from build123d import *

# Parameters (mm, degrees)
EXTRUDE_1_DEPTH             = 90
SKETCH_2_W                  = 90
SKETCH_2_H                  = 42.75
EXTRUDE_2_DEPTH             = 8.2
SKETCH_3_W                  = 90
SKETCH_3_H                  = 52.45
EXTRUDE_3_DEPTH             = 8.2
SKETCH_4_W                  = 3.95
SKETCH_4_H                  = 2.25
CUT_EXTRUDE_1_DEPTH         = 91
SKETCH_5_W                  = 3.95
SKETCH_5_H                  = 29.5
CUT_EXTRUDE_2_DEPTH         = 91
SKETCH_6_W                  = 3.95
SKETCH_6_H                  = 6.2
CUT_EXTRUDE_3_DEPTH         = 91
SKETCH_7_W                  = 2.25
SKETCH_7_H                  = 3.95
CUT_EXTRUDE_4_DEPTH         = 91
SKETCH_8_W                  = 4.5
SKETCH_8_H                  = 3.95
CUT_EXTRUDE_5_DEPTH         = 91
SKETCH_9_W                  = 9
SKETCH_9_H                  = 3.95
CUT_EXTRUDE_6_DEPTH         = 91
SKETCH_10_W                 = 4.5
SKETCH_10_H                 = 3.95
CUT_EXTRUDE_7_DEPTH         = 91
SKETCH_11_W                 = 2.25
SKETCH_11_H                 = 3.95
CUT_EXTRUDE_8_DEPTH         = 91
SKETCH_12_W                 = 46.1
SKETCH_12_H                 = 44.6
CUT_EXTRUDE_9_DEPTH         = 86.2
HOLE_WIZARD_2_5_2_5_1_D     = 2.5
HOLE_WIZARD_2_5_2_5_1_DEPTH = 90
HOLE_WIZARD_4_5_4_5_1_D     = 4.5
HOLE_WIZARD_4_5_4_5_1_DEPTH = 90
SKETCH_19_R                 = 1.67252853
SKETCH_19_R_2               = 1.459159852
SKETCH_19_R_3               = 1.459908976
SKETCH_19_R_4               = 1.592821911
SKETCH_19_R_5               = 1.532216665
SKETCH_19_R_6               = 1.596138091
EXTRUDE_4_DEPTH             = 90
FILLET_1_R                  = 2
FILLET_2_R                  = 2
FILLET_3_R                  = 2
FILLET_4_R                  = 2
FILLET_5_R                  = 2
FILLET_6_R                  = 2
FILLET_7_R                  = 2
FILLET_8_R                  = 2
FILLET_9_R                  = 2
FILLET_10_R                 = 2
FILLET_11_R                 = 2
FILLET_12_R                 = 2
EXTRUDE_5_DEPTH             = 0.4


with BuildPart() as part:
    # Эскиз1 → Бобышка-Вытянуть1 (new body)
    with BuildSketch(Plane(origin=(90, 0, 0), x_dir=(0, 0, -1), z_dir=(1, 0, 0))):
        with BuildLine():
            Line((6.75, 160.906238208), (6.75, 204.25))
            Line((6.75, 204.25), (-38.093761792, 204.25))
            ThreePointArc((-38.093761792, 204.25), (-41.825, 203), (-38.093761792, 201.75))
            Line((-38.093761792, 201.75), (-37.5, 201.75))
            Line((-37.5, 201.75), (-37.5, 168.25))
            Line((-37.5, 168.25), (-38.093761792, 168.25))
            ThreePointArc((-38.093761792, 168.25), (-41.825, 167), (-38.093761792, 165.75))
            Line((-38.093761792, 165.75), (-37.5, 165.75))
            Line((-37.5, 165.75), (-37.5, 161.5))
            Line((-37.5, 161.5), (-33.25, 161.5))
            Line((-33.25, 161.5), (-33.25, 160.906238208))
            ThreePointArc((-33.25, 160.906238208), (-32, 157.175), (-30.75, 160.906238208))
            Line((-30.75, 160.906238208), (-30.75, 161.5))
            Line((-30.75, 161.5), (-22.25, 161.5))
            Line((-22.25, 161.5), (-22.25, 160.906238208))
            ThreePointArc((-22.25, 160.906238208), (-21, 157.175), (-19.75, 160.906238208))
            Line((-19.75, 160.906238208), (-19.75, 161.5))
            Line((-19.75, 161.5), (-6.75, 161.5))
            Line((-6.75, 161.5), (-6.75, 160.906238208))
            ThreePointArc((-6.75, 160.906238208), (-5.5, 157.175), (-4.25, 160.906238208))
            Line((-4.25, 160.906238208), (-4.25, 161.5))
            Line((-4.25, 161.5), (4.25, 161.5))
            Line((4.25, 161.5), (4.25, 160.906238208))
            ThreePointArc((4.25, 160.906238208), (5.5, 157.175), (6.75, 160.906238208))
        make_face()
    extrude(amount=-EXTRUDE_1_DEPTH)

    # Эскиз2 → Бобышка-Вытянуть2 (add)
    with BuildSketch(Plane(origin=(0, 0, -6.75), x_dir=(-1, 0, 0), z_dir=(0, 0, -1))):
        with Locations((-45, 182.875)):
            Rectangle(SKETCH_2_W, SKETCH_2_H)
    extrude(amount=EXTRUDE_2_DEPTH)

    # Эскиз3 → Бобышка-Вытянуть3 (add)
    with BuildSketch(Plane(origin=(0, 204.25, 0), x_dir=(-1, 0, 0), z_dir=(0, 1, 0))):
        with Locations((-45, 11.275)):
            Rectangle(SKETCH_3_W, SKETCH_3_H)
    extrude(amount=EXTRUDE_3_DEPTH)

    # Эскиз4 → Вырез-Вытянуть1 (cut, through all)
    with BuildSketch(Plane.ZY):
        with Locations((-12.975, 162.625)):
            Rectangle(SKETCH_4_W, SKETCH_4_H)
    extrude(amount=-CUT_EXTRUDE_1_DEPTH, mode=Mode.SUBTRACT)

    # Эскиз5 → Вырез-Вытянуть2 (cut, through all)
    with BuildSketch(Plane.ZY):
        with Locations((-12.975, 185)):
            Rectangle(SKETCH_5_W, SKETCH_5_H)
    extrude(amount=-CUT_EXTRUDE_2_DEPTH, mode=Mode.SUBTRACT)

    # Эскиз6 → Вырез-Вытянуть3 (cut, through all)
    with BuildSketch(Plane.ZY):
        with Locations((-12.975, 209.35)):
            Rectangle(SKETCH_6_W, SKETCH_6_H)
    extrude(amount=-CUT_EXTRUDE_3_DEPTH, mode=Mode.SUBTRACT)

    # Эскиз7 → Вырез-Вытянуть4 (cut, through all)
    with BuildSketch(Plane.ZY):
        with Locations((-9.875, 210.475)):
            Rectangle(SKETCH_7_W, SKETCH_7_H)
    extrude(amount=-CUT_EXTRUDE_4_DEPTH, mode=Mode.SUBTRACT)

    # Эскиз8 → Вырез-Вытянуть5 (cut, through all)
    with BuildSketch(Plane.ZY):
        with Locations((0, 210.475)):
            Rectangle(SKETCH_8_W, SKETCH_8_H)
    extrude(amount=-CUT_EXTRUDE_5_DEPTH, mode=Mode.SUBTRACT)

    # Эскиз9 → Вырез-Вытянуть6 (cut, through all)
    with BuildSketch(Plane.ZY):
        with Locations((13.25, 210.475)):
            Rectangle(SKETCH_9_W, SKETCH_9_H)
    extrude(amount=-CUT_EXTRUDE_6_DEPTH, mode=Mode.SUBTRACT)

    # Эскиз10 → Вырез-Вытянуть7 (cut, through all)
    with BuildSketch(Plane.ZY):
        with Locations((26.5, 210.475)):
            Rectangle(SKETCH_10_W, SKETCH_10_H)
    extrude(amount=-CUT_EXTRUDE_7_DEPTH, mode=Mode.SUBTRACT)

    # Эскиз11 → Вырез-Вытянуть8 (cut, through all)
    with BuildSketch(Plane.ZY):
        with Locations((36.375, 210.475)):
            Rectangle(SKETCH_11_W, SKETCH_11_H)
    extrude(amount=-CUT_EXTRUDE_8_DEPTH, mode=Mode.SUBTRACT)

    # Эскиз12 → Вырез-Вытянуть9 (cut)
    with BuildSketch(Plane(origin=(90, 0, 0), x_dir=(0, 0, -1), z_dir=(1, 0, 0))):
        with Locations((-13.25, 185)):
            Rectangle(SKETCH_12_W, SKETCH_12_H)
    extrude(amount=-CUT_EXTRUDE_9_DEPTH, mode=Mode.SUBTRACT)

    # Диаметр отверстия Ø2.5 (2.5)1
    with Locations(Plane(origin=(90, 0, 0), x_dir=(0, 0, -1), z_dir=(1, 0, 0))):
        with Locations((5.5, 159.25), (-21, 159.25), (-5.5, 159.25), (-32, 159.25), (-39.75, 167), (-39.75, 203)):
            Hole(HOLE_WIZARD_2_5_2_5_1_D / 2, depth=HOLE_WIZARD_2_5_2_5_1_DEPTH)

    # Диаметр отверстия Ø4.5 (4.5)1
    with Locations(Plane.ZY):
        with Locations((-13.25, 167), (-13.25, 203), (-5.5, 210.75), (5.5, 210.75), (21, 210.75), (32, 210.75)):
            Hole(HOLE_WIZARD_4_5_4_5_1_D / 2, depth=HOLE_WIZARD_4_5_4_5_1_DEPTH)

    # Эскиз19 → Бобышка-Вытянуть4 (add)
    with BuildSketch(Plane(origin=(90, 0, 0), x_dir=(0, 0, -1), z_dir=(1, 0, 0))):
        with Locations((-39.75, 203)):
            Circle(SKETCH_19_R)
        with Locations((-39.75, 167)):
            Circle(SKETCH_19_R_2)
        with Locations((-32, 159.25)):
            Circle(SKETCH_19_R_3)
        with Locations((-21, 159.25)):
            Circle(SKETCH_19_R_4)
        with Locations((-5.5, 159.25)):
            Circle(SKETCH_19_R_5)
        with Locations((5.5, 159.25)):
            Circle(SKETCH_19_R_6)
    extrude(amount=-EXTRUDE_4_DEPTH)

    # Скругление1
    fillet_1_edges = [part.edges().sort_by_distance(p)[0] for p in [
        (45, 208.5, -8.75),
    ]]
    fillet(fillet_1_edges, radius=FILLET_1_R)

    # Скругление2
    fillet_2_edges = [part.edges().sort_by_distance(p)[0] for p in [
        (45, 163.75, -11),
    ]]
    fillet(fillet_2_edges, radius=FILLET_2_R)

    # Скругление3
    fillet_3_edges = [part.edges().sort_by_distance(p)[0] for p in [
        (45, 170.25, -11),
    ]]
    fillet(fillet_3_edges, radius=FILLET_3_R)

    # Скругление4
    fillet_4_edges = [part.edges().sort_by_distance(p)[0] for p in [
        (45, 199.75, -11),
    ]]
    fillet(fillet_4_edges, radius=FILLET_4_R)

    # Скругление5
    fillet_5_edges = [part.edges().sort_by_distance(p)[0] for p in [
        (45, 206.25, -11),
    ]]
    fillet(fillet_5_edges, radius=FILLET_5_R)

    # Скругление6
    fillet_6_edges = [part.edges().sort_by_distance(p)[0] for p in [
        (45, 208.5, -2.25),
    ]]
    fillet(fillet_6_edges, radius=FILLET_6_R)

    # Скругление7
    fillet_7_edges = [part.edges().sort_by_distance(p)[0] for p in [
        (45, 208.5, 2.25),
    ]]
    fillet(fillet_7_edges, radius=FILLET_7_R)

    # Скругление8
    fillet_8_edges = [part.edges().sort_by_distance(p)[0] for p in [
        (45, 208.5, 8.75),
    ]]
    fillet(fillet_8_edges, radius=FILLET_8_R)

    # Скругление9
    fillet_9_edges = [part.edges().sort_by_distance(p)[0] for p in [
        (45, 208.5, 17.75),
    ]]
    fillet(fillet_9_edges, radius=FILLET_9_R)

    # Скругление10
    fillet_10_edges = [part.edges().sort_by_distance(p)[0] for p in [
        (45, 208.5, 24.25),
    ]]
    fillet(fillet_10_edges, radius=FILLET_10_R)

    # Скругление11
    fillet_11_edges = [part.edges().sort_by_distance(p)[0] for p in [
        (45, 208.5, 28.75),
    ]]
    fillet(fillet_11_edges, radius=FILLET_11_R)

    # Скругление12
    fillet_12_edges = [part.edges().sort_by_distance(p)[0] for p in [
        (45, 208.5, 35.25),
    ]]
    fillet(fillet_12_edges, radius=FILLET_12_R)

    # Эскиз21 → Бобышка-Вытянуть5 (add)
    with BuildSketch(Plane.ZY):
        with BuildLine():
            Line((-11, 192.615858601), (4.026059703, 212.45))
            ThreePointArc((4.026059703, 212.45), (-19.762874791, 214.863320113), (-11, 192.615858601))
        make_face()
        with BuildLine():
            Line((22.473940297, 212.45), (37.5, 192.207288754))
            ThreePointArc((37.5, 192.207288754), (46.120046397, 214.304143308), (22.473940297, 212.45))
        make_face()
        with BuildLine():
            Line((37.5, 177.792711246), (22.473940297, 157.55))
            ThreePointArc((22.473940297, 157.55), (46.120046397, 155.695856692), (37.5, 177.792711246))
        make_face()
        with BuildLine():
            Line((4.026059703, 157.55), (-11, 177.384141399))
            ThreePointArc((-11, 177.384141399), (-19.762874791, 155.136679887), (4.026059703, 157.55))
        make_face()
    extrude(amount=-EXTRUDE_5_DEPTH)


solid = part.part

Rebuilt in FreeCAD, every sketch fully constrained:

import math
import FreeCAD as App
import Part
import Sketcher

V = App.Vector


def edges_at(feature, points):
    """Names of the edges that pass closest to the given points."""
    edges = feature.Shape.Edges
    near = lambda p: min(range(len(edges)), key=lambda i: edges[i].distToShape(Part.Vertex(*p))[0])
    return sorted({f"Edge{near(p) + 1}" for p in points})


def add_polygon(sketch, points):
    """Adds a closed chain of lines whose ends are joined by coincident constraints."""
    first, n = sketch.GeometryCount, len(points)
    for a, b in zip(points, points[1:] + points[:1]):
        sketch.addGeometry(Part.LineSegment(App.Vector(*a, 0), App.Vector(*b, 0)), False)
    for i in range(n):
        sketch.addConstraint(Sketcher.Constraint("Coincident", first + i, 2, first + (i + 1) % n, 1))

doc = App.newDocument("Part")
body = doc.addObject("PartDesign::Body", "Body")

# Sketch on YZ plane
sketch1 = body.newObject("Sketcher::SketchObject", "Sketch")
sketch1.AttachmentSupport = (doc.getObject("YZ_Plane"), [""])
sketch1.MapMode = "FlatFace"
sketch1.AttachmentOffset = App.Placement(V(0, 0, 90), App.Rotation())
sketch1.addGeometry(Part.LineSegment(V(160.9, -6.8, 0), V(204.2, -6.8, 0)), False)
sketch1.addGeometry(Part.LineSegment(V(204.2, -6.8, 0), V(204.2, 38.1, 0)), False)
sketch1.addGeometry(Part.ArcOfCircle(Part.Circle(V(203, 39.8, 0), V(0, 0, 1), 2.1), math.radians(-53), math.radians(233)), False)
sketch1.addGeometry(Part.LineSegment(V(201.8, 38.1, 0), V(201.8, 37.5, 0)), False)
sketch1.addGeometry(Part.LineSegment(V(201.8, 37.5, 0), V(168.2, 37.5, 0)), False)
sketch1.addGeometry(Part.LineSegment(V(168.2, 37.5, 0), V(168.2, 38.1, 0)), False)
sketch1.addGeometry(Part.ArcOfCircle(Part.Circle(V(167, 39.8, 0), V(0, 0, 1), 2.1), math.radians(-53), math.radians(233)), False)
sketch1.addGeometry(Part.LineSegment(V(165.8, 38.1, 0), V(165.8, 37.5, 0)), False)
sketch1.addGeometry(Part.LineSegment(V(165.8, 37.5, 0), V(161.5, 37.5, 0)), False)
sketch1.addGeometry(Part.LineSegment(V(161.5, 37.5, 0), V(161.5, 33.2, 0)), False)
sketch1.addGeometry(Part.LineSegment(V(161.5, 33.2, 0), V(160.9, 33.2, 0)), False)
sketch1.addGeometry(Part.ArcOfCircle(Part.Circle(V(159.2, 32, 0), V(0, 0, 1), 2.1), math.radians(37), math.radians(323)), False)
sketch1.addGeometry(Part.LineSegment(V(160.9, 30.8, 0), V(161.5, 30.8, 0)), False)
sketch1.addGeometry(Part.LineSegment(V(161.5, 30.8, 0), V(161.5, 22.2, 0)), False)
sketch1.addGeometry(Part.LineSegment(V(161.5, 22.2, 0), V(160.9, 22.2, 0)), False)
sketch1.addGeometry(Part.ArcOfCircle(Part.Circle(V(159.2, 21, 0), V(0, 0, 1), 2.1), math.radians(37), math.radians(323)), False)
sketch1.addGeometry(Part.LineSegment(V(160.9, 19.8, 0), V(161.5, 19.8, 0)), False)
sketch1.addGeometry(Part.LineSegment(V(161.5, 19.8, 0), V(161.5, 6.8, 0)), False)
sketch1.addGeometry(Part.LineSegment(V(161.5, 6.8, 0), V(160.9, 6.8, 0)), False)
sketch1.addGeometry(Part.ArcOfCircle(Part.Circle(V(159.2, 5.5, 0), V(0, 0, 1), 2.1), math.radians(37), math.radians(323)), False)
sketch1.addGeometry(Part.LineSegment(V(160.9, 4.2, 0), V(161.5, 4.2, 0)), False)
sketch1.addGeometry(Part.LineSegment(V(161.5, 4.2, 0), V(161.5, -4.2, 0)), False)
sketch1.addGeometry(Part.LineSegment(V(161.5, -4.2, 0), V(160.9, -4.2, 0)), False)
sketch1.addGeometry(Part.ArcOfCircle(Part.Circle(V(159.2, -5.5, 0), V(0, 0, 1), 2.1), math.radians(37), math.radians(323)), False)
sketch1.addConstraint(Sketcher.Constraint("Coincident", 0, 2, 1, 1))
sketch1.addConstraint(Sketcher.Constraint("Coincident", 1, 2, 2, 1))
sketch1.addConstraint(Sketcher.Constraint("Coincident", 2, 2, 3, 1))
sketch1.addConstraint(Sketcher.Constraint("Coincident", 3, 2, 4, 1))
sketch1.addConstraint(Sketcher.Constraint("Coincident", 4, 2, 5, 1))
sketch1.addConstraint(Sketcher.Constraint("Coincident", 5, 2, 6, 1))
sketch1.addConstraint(Sketcher.Constraint("Coincident", 6, 2, 7, 1))
sketch1.addConstraint(Sketcher.Constraint("Coincident", 7, 2, 8, 1))
sketch1.addConstraint(Sketcher.Constraint("Coincident", 8, 2, 9, 1))
sketch1.addConstraint(Sketcher.Constraint("Coincident", 9, 2, 10, 1))
sketch1.addConstraint(Sketcher.Constraint("Coincident", 10, 2, 11, 1))
sketch1.addConstraint(Sketcher.Constraint("Coincident", 11, 2, 12, 1))
sketch1.addConstraint(Sketcher.Constraint("Coincident", 12, 2, 13, 1))
sketch1.addConstraint(Sketcher.Constraint("Coincident", 13, 2, 14, 1))
sketch1.addConstraint(Sketcher.Constraint("Coincident", 14, 2, 15, 1))
sketch1.addConstraint(Sketcher.Constraint("Coincident", 15, 2, 16, 1))
sketch1.addConstraint(Sketcher.Constraint("Coincident", 16, 2, 17, 1))
sketch1.addConstraint(Sketcher.Constraint("Coincident", 17, 2, 18, 1))
sketch1.addConstraint(Sketcher.Constraint("Coincident", 18, 2, 19, 1))
sketch1.addConstraint(Sketcher.Constraint("Coincident", 19, 2, 20, 1))
sketch1.addConstraint(Sketcher.Constraint("Coincident", 20, 2, 21, 1))
sketch1.addConstraint(Sketcher.Constraint("Coincident", 21, 2, 22, 1))
sketch1.addConstraint(Sketcher.Constraint("Coincident", 22, 2, 23, 1))
sketch1.addConstraint(Sketcher.Constraint("Coincident", 23, 2, 0, 1))
sketch1.addConstraint(Sketcher.Constraint("Horizontal", 0))
sketch1.addConstraint(Sketcher.Constraint("Vertical", 1))
sketch1.addConstraint(Sketcher.Constraint("Vertical", 3))
sketch1.addConstraint(Sketcher.Constraint("Horizontal", 4))
sketch1.addConstraint(Sketcher.Constraint("Vertical", 5))
sketch1.addConstraint(Sketcher.Constraint("Vertical", 7))
sketch1.addConstraint(Sketcher.Constraint("Horizontal", 8))
sketch1.addConstraint(Sketcher.Constraint("Vertical", 9))
sketch1.addConstraint(Sketcher.Constraint("Horizontal", 10))
sketch1.addConstraint(Sketcher.Constraint("Horizontal", 12))
sketch1.addConstraint(Sketcher.Constraint("Vertical", 13))
sketch1.addConstraint(Sketcher.Constraint("Horizontal", 14))
sketch1.addConstraint(Sketcher.Constraint("Horizontal", 16))
sketch1.addConstraint(Sketcher.Constraint("Vertical", 17))
sketch1.addConstraint(Sketcher.Constraint("Horizontal", 18))
sketch1.addConstraint(Sketcher.Constraint("Horizontal", 20))
sketch1.addConstraint(Sketcher.Constraint("Vertical", 21))
sketch1.addConstraint(Sketcher.Constraint("Horizontal", 22))
sketch1.addConstraint(Sketcher.Constraint("Equal", 2, 6))
sketch1.addConstraint(Sketcher.Constraint("Equal", 6, 11))
sketch1.addConstraint(Sketcher.Constraint("Equal", 11, 15))
sketch1.addConstraint(Sketcher.Constraint("Equal", 15, 19))
sketch1.addConstraint(Sketcher.Constraint("Equal", 19, 23))
sketch1.addConstraint(Sketcher.Constraint("Symmetric", 19, 3, 23, 3, -1))
sketch1.addConstraint(Sketcher.Constraint("Horizontal", 2, 3, 6, 3))
sketch1.addConstraint(Sketcher.Constraint("Horizontal", 1, 2, 2, 2))
sketch1.addConstraint(Sketcher.Constraint("Horizontal", 2, 2, 5, 2))
sketch1.addConstraint(Sketcher.Constraint("Horizontal", 5, 2, 6, 2))
sketch1.addConstraint(Sketcher.Constraint("Horizontal", 4, 2, 7, 2))
sketch1.addConstraint(Sketcher.Constraint("Vertical", 11, 3, 15, 3))
sketch1.addConstraint(Sketcher.Constraint("Vertical", 15, 3, 19, 3))
sketch1.addConstraint(Sketcher.Constraint("Vertical", 10, 2, 11, 2))
sketch1.addConstraint(Sketcher.Constraint("Vertical", 9, 2, 12, 2))
sketch1.addConstraint(Sketcher.Constraint("Vertical", 11, 2, 14, 2))
sketch1.addConstraint(Sketcher.Constraint("Vertical", 14, 2, 15, 2))
sketch1.addConstraint(Sketcher.Constraint("Vertical", 13, 2, 16, 2))
sketch1.addConstraint(Sketcher.Constraint("Vertical", 15, 2, 18, 2))
sketch1.addConstraint(Sketcher.Constraint("Vertical", 18, 2, 19, 2))
sketch1.addConstraint(Sketcher.Constraint("Vertical", 17, 2, 20, 2))
sketch1.addConstraint(Sketcher.Constraint("Vertical", 19, 2, 22, 2))
sketch1.addConstraint(Sketcher.Constraint("Vertical", 22, 2, 23, 2))
sketch1.addConstraint(Sketcher.Constraint("Equal", 22, 3))
sketch1.addConstraint(Sketcher.Constraint("Equal", 8, 9))
sketch1.addConstraint(Sketcher.Constraint("Equal", 13, 21))
sketch1.addConstraint(Sketcher.Constraint("DistanceY", 17, 2, 17, 1, 13.0))
sketch1.addConstraint(Sketcher.Constraint("DistanceX", 4, 2, 4, 1, 33.5))
sketch1.addConstraint(Sketcher.Constraint("DistanceY", 13, 2, 13, 1, 8.5))
sketch1.addConstraint(Sketcher.Constraint("DistanceX", -1, 1, 2, 3, 203.0))
sketch1.addConstraint(Sketcher.Constraint("DistanceX", -1, 1, 6, 3, 167.0))
sketch1.addConstraint(Sketcher.Constraint("DistanceY", -1, 1, 11, 3, 32.0))
sketch1.addConstraint(Sketcher.Constraint("Radius", 2, 2.075))
sketch1.addConstraint(Sketcher.Constraint("DistanceX", 23, 3, 0, 2, 45.0))
sketch1.addConstraint(Sketcher.Constraint("DistanceY", 19, 3, 4, 2, 32.0))
pad1 = body.newObject("PartDesign::Pad", "Pad")
pad1.Profile = sketch1
pad1.Length = 90
pad1.Reversed = True

# Sketch on XY plane
sketch2 = body.newObject("Sketcher::SketchObject", "Sketch001")
sketch2.AttachmentSupport = (doc.getObject("XY_Plane"), [""])
sketch2.MapMode = "FlatFace"
sketch2.AttachmentOffset = App.Placement(V(0, 0, -6.75), App.Rotation())
add_polygon(sketch2, [(90, 204), (90, 162), (0, 162), (0, 204)])  # lines 0-3
sketch2.addConstraint(Sketcher.Constraint("Vertical", 0))
sketch2.addConstraint(Sketcher.Constraint("Horizontal", 1))
sketch2.addConstraint(Sketcher.Constraint("Vertical", 2))
sketch2.addConstraint(Sketcher.Constraint("Horizontal", 3))
sketch2.addConstraint(Sketcher.Constraint("PointOnObject", 1, 2, -2))
sketch2.addConstraint(Sketcher.Constraint("DistanceX", 1, 2, 1, 1, 90.0))
sketch2.addConstraint(Sketcher.Constraint("DistanceY", 0, 2, 0, 1, 42.75))
sketch2.addConstraint(Sketcher.Constraint("DistanceY", -1, 1, 0, 2, 161.5))
pad2 = body.newObject("PartDesign::Pad", "Pad001")
pad2.Profile = sketch2
pad2.Length = 8.2
pad2.Reversed = True

# Sketch on XZ plane
sketch3 = body.newObject("Sketcher::SketchObject", "Sketch002")
sketch3.AttachmentSupport = (doc.getObject("XZ_Plane"), [""])
sketch3.MapMode = "FlatFace"
sketch3.AttachmentOffset = App.Placement(V(0, 0, -204.25), App.Rotation())
add_polygon(sketch3, [(90, 38), (90, -15), (0, -15), (0, 38)])  # lines 0-3
sketch3.addConstraint(Sketcher.Constraint("Vertical", 0))
sketch3.addConstraint(Sketcher.Constraint("Horizontal", 1))
sketch3.addConstraint(Sketcher.Constraint("Vertical", 2))
sketch3.addConstraint(Sketcher.Constraint("Horizontal", 3))
sketch3.addConstraint(Sketcher.Constraint("PointOnObject", 1, 2, -2))
sketch3.addConstraint(Sketcher.Constraint("DistanceX", 1, 2, 1, 1, 90.0))
sketch3.addConstraint(Sketcher.Constraint("DistanceY", 0, 2, 0, 1, 52.45))
sketch3.addConstraint(Sketcher.Constraint("DistanceY", -1, 1, 2, 2, 37.5))
pad3 = body.newObject("PartDesign::Pad", "Pad002")
pad3.Profile = sketch3
pad3.Length = 8.2
pad3.Reversed = True

# Sketch on YZ plane
sketch4 = body.newObject("Sketcher::SketchObject", "Sketch003")
sketch4.AttachmentSupport = (doc.getObject("YZ_Plane"), [""])
sketch4.MapMode = "FlatFace"
add_polygon(sketch4, [(163.8, -14.9), (161.5, -14.9), (161.5, -11), (163.8, -11)])  # lines 0-3
sketch4.addConstraint(Sketcher.Constraint("Horizontal", 0))
sketch4.addConstraint(Sketcher.Constraint("Vertical", 1))
sketch4.addConstraint(Sketcher.Constraint("Horizontal", 2))
sketch4.addConstraint(Sketcher.Constraint("Vertical", 3))
sketch4.addConstraint(Sketcher.Constraint("DistanceY", 1, 2, -1, 1, 11.0))
sketch4.addConstraint(Sketcher.Constraint("DistanceX", 0, 2, 0, 1, 2.25))
sketch4.addConstraint(Sketcher.Constraint("DistanceY", 1, 1, 1, 2, 3.95))
sketch4.addConstraint(Sketcher.Constraint("DistanceX", -1, 1, 0, 2, 161.5))
pocket1 = body.newObject("PartDesign::Pocket", "Pocket")
pocket1.Profile = sketch4
pocket1.Type = "ThroughAll"
pocket1.Reversed = True

# Sketch on YZ plane
sketch5 = body.newObject("Sketcher::SketchObject", "Sketch004")
sketch5.AttachmentSupport = (doc.getObject("YZ_Plane"), [""])
sketch5.MapMode = "FlatFace"
add_polygon(sketch5, [(199.8, -14.9), (170.2, -14.9), (170.2, -11), (199.8, -11)])  # lines 0-3
sketch5.addConstraint(Sketcher.Constraint("Horizontal", 0))
sketch5.addConstraint(Sketcher.Constraint("Vertical", 1))
sketch5.addConstraint(Sketcher.Constraint("Horizontal", 2))
sketch5.addConstraint(Sketcher.Constraint("Vertical", 3))
sketch5.addConstraint(Sketcher.Constraint("DistanceX", 0, 2, 0, 1, 29.5))
sketch5.addConstraint(Sketcher.Constraint("DistanceY", 1, 2, -1, 1, 11.0))
sketch5.addConstraint(Sketcher.Constraint("DistanceY", 1, 1, 1, 2, 3.95))
sketch5.addConstraint(Sketcher.Constraint("DistanceX", -1, 1, 0, 2, 170.25))
pocket2 = body.newObject("PartDesign::Pocket", "Pocket001")
pocket2.Profile = sketch5
pocket2.Type = "ThroughAll"
pocket2.Reversed = True

# Sketch on YZ plane
sketch6 = body.newObject("Sketcher::SketchObject", "Sketch005")
sketch6.AttachmentSupport = (doc.getObject("YZ_Plane"), [""])
sketch6.MapMode = "FlatFace"
add_polygon(sketch6, [(212.4, -14.9), (206.2, -14.9), (206.2, -11), (212.4, -11)])  # lines 0-3
sketch6.addConstraint(Sketcher.Constraint("Horizontal", 0))
sketch6.addConstraint(Sketcher.Constraint("Vertical", 1))
sketch6.addConstraint(Sketcher.Constraint("Horizontal", 2))
sketch6.addConstraint(Sketcher.Constraint("Vertical", 3))
sketch6.addConstraint(Sketcher.Constraint("DistanceX", 0, 2, 0, 1, 6.2))
sketch6.addConstraint(Sketcher.Constraint("DistanceY", 1, 2, -1, 1, 11.0))
sketch6.addConstraint(Sketcher.Constraint("DistanceY", 1, 1, 1, 2, 3.95))
sketch6.addConstraint(Sketcher.Constraint("DistanceX", -1, 1, 0, 2, 206.25))
pocket3 = body.newObject("PartDesign::Pocket", "Pocket002")
pocket3.Profile = sketch6
pocket3.Type = "ThroughAll"
pocket3.Reversed = True

# Sketch on YZ plane
sketch7 = body.newObject("Sketcher::SketchObject", "Sketch006")
sketch7.AttachmentSupport = (doc.getObject("YZ_Plane"), [""])
sketch7.MapMode = "FlatFace"
add_polygon(sketch7, [(212.4, -11), (208.5, -11), (208.5, -8.8), (212.4, -8.8)])  # lines 0-3
sketch7.addConstraint(Sketcher.Constraint("Horizontal", 0))
sketch7.addConstraint(Sketcher.Constraint("Vertical", 1))
sketch7.addConstraint(Sketcher.Constraint("Horizontal", 2))
sketch7.addConstraint(Sketcher.Constraint("Vertical", 3))
sketch7.addConstraint(Sketcher.Constraint("DistanceY", 0, 2, -1, 1, 11.0))
sketch7.addConstraint(Sketcher.Constraint("DistanceX", 0, 2, 0, 1, 3.95))
sketch7.addConstraint(Sketcher.Constraint("DistanceY", 1, 1, 1, 2, 2.25))
sketch7.addConstraint(Sketcher.Constraint("DistanceX", -1, 1, 0, 2, 208.5))
pocket4 = body.newObject("PartDesign::Pocket", "Pocket003")
pocket4.Profile = sketch7
pocket4.Type = "ThroughAll"
pocket4.Reversed = True

# Sketch on YZ plane
sketch8 = body.newObject("Sketcher::SketchObject", "Sketch007")
sketch8.AttachmentSupport = (doc.getObject("YZ_Plane"), [""])
sketch8.MapMode = "FlatFace"
add_polygon(sketch8, [(212.4, -2.2), (208.5, -2.2), (208.5, 2.2), (212.4, 2.2)])  # lines 0-3
sketch8.addConstraint(Sketcher.Constraint("Horizontal", 0))
sketch8.addConstraint(Sketcher.Constraint("Vertical", 1))
sketch8.addConstraint(Sketcher.Constraint("Horizontal", 2))
sketch8.addConstraint(Sketcher.Constraint("Vertical", 3))
sketch8.addConstraint(Sketcher.Constraint("DistanceY", 1, 1, 1, 2, 4.5))
sketch8.addConstraint(Sketcher.Constraint("DistanceX", 0, 2, 0, 1, 3.95))
sketch8.addConstraint(Sketcher.Constraint("DistanceX", -1, 1, 0, 2, 208.5))
sketch8.addConstraint(Sketcher.Constraint("DistanceY", 0, 2, -1, 1, 2.25))
pocket5 = body.newObject("PartDesign::Pocket", "Pocket004")
pocket5.Profile = sketch8
pocket5.Type = "ThroughAll"
pocket5.Reversed = True

# Sketch on YZ plane
sketch9 = body.newObject("Sketcher::SketchObject", "Sketch008")
sketch9.AttachmentSupport = (doc.getObject("YZ_Plane"), [""])
sketch9.MapMode = "FlatFace"
add_polygon(sketch9, [(212.4, 8.8), (208.5, 8.8), (208.5, 17.8), (212.4, 17.8)])  # lines 0-3
sketch9.addConstraint(Sketcher.Constraint("Horizontal", 0))
sketch9.addConstraint(Sketcher.Constraint("Vertical", 1))
sketch9.addConstraint(Sketcher.Constraint("Horizontal", 2))
sketch9.addConstraint(Sketcher.Constraint("Vertical", 3))
sketch9.addConstraint(Sketcher.Constraint("DistanceY", 1, 1, 1, 2, 9.0))
sketch9.addConstraint(Sketcher.Constraint("DistanceX", 0, 2, 0, 1, 3.95))
sketch9.addConstraint(Sketcher.Constraint("DistanceX", -1, 1, 0, 2, 208.5))
sketch9.addConstraint(Sketcher.Constraint("DistanceY", -1, 1, 0, 2, 8.75))
pocket6 = body.newObject("PartDesign::Pocket", "Pocket005")
pocket6.Profile = sketch9
pocket6.Type = "ThroughAll"
pocket6.Reversed = True

# Sketch on YZ plane
sketch10 = body.newObject("Sketcher::SketchObject", "Sketch009")
sketch10.AttachmentSupport = (doc.getObject("YZ_Plane"), [""])
sketch10.MapMode = "FlatFace"
add_polygon(sketch10, [(212.4, 24.2), (208.5, 24.2), (208.5, 28.8), (212.4, 28.8)])  # lines 0-3
sketch10.addConstraint(Sketcher.Constraint("Horizontal", 0))
sketch10.addConstraint(Sketcher.Constraint("Vertical", 1))
sketch10.addConstraint(Sketcher.Constraint("Horizontal", 2))
sketch10.addConstraint(Sketcher.Constraint("Vertical", 3))
sketch10.addConstraint(Sketcher.Constraint("DistanceY", 1, 1, 1, 2, 4.5))
sketch10.addConstraint(Sketcher.Constraint("DistanceX", 0, 2, 0, 1, 3.95))
sketch10.addConstraint(Sketcher.Constraint("DistanceX", -1, 1, 0, 2, 208.5))
sketch10.addConstraint(Sketcher.Constraint("DistanceY", -1, 1, 0, 2, 24.25))
pocket7 = body.newObject("PartDesign::Pocket", "Pocket006")
pocket7.Profile = sketch10
pocket7.Type = "ThroughAll"
pocket7.Reversed = True

# Sketch on YZ plane
sketch11 = body.newObject("Sketcher::SketchObject", "Sketch010")
sketch11.AttachmentSupport = (doc.getObject("YZ_Plane"), [""])
sketch11.MapMode = "FlatFace"
add_polygon(sketch11, [(212.4, 35.2), (208.5, 35.2), (208.5, 37.5), (212.4, 37.5)])  # lines 0-3
sketch11.addConstraint(Sketcher.Constraint("Horizontal", 0))
sketch11.addConstraint(Sketcher.Constraint("Vertical", 1))
sketch11.addConstraint(Sketcher.Constraint("Horizontal", 2))
sketch11.addConstraint(Sketcher.Constraint("Vertical", 3))
sketch11.addConstraint(Sketcher.Constraint("DistanceX", 0, 2, 0, 1, 3.95))
sketch11.addConstraint(Sketcher.Constraint("DistanceY", 1, 1, 1, 2, 2.25))
sketch11.addConstraint(Sketcher.Constraint("DistanceX", -1, 1, 0, 2, 208.5))
sketch11.addConstraint(Sketcher.Constraint("DistanceY", -1, 1, 1, 2, 37.5))
pocket8 = body.newObject("PartDesign::Pocket", "Pocket007")
pocket8.Profile = sketch11
pocket8.Type = "ThroughAll"
pocket8.Reversed = True

# Sketch on YZ plane
sketch12 = body.newObject("Sketcher::SketchObject", "Sketch011")
sketch12.AttachmentSupport = (doc.getObject("YZ_Plane"), [""])
sketch12.MapMode = "FlatFace"
sketch12.AttachmentOffset = App.Placement(V(0, 0, 90), App.Rotation())
add_polygon(sketch12, [(207, 36), (163, 36), (163, -10), (207, -10)])  # lines 0-3
sketch12.addConstraint(Sketcher.Constraint("Horizontal", 0))
sketch12.addConstraint(Sketcher.Constraint("Vertical", 1))
sketch12.addConstraint(Sketcher.Constraint("Horizontal", 2))
sketch12.addConstraint(Sketcher.Constraint("Vertical", 3))
sketch12.addConstraint(Sketcher.Constraint("DistanceX", 0, 2, 0, 1, 44.6))
sketch12.addConstraint(Sketcher.Constraint("DistanceY", 1, 2, 1, 1, 46.1))
sketch12.addConstraint(Sketcher.Constraint("DistanceX", -1, 1, 0, 2, 162.7))
sketch12.addConstraint(Sketcher.Constraint("DistanceY", -1, 1, 0, 2, 36.3))
pocket9 = body.newObject("PartDesign::Pocket", "Pocket008")
pocket9.Profile = sketch12
pocket9.Length = 86.2

# Sketch on YZ plane
sketch13 = body.newObject("Sketcher::SketchObject", "Sketch012")
sketch13.AttachmentSupport = (doc.getObject("YZ_Plane"), [""])
sketch13.MapMode = "FlatFace"
sketch13.AttachmentOffset = App.Placement(V(0, 0, 90), App.Rotation())
sketch13.addGeometry(Part.Circle(V(159.2, -5.5, 0), V(0, 0, 1), 1.2), False)
sketch13.addGeometry(Part.Circle(V(159.2, 21, 0), V(0, 0, 1), 1.2), False)
sketch13.addGeometry(Part.Circle(V(159.2, 5.5, 0), V(0, 0, 1), 1.2), False)
sketch13.addGeometry(Part.Circle(V(159.2, 32, 0), V(0, 0, 1), 1.2), False)
sketch13.addGeometry(Part.Circle(V(167, 39.8, 0), V(0, 0, 1), 1.2), False)
sketch13.addGeometry(Part.Circle(V(203, 39.8, 0), V(0, 0, 1), 1.2), False)
sketch13.addConstraint(Sketcher.Constraint("Equal", 0, 1))
sketch13.addConstraint(Sketcher.Constraint("Equal", 1, 2))
sketch13.addConstraint(Sketcher.Constraint("Equal", 2, 3))
sketch13.addConstraint(Sketcher.Constraint("Equal", 3, 4))
sketch13.addConstraint(Sketcher.Constraint("Equal", 4, 5))
sketch13.addConstraint(Sketcher.Constraint("Symmetric", 0, 3, 2, 3, -1))
sketch13.addConstraint(Sketcher.Constraint("Horizontal", 4, 3, 5, 3))
sketch13.addConstraint(Sketcher.Constraint("Vertical", 0, 3, 1, 3))
sketch13.addConstraint(Sketcher.Constraint("Vertical", 2, 3, 3, 3))
sketch13.addConstraint(Sketcher.Constraint("Diameter", 0, 2.5))
sketch13.addConstraint(Sketcher.Constraint("DistanceY", -1, 1, 1, 3, 21.0))
sketch13.addConstraint(Sketcher.Constraint("DistanceY", -1, 1, 3, 3, 32.0))
sketch13.addConstraint(Sketcher.Constraint("DistanceX", -1, 1, 4, 3, 167.0))
sketch13.addConstraint(Sketcher.Constraint("DistanceX", -1, 1, 5, 3, 203.0))
sketch13.addConstraint(Sketcher.Constraint("DistanceY", 0, 3, 2, 3, 11.0))
sketch13.addConstraint(Sketcher.Constraint("DistanceX", -1, 1, 0, 3, 159.25))
sketch13.addConstraint(Sketcher.Constraint("DistanceY", -1, 1, 4, 3, 39.75))
doc.recompute()
hole = body.newObject("PartDesign::Hole", "Hole")
hole.Profile = sketch13
hole.ThreadType = "None"
hole.Diameter = 2.5
hole.DepthType = "Dimension"
hole.Depth = 90
hole.DrillPoint = "Flat"

# Sketch on YZ plane
sketch14 = body.newObject("Sketcher::SketchObject", "Sketch013")
sketch14.AttachmentSupport = (doc.getObject("YZ_Plane"), [""])
sketch14.MapMode = "FlatFace"
sketch14.addGeometry(Part.Circle(V(167, -13.2, 0), V(0, 0, 1), 2.2), False)
sketch14.addGeometry(Part.Circle(V(203, -13.2, 0), V(0, 0, 1), 2.2), False)
sketch14.addGeometry(Part.Circle(V(210.8, -5.5, 0), V(0, 0, 1), 2.2), False)
sketch14.addGeometry(Part.Circle(V(210.8, 5.5, 0), V(0, 0, 1), 2.2), False)
sketch14.addGeometry(Part.Circle(V(210.8, 21, 0), V(0, 0, 1), 2.2), False)
sketch14.addGeometry(Part.Circle(V(210.8, 32, 0), V(0, 0, 1), 2.2), False)
sketch14.addConstraint(Sketcher.Constraint("Equal", 0, 1))
sketch14.addConstraint(Sketcher.Constraint("Equal", 1, 2))
sketch14.addConstraint(Sketcher.Constraint("Equal", 2, 3))
sketch14.addConstraint(Sketcher.Constraint("Equal", 3, 4))
sketch14.addConstraint(Sketcher.Constraint("Equal", 4, 5))
sketch14.addConstraint(Sketcher.Constraint("Symmetric", 2, 3, 3, 3, -1))
sketch14.addConstraint(Sketcher.Constraint("Horizontal", 0, 3, 1, 3))
sketch14.addConstraint(Sketcher.Constraint("Vertical", 3, 3, 4, 3))
sketch14.addConstraint(Sketcher.Constraint("Vertical", 4, 3, 5, 3))
sketch14.addConstraint(Sketcher.Constraint("Diameter", 0, 4.5))
sketch14.addConstraint(Sketcher.Constraint("DistanceX", -1, 1, 0, 3, 167.0))
sketch14.addConstraint(Sketcher.Constraint("DistanceX", -1, 1, 1, 3, 203.0))
sketch14.addConstraint(Sketcher.Constraint("DistanceY", -1, 1, 4, 3, 21.0))
sketch14.addConstraint(Sketcher.Constraint("DistanceY", -1, 1, 5, 3, 32.0))
sketch14.addConstraint(Sketcher.Constraint("DistanceY", 2, 3, 3, 3, 11.0))
sketch14.addConstraint(Sketcher.Constraint("DistanceY", 0, 3, -1, 1, 13.25))
sketch14.addConstraint(Sketcher.Constraint("DistanceX", -1, 1, 2, 3, 210.75))
doc.recompute()
hole2 = body.newObject("PartDesign::Hole", "Hole001")
hole2.Profile = sketch14
hole2.ThreadType = "None"
hole2.Diameter = 4.5
hole2.DepthType = "Dimension"
hole2.Depth = 90
hole2.DrillPoint = "Flat"
hole2.Reversed = True

# Sketch on YZ plane
sketch15 = body.newObject("Sketcher::SketchObject", "Sketch014")
sketch15.AttachmentSupport = (doc.getObject("YZ_Plane"), [""])
sketch15.MapMode = "FlatFace"
sketch15.AttachmentOffset = App.Placement(V(0, 0, 90), App.Rotation())
sketch15.addGeometry(Part.Circle(V(203, 39.8, 0), V(0, 0, 1), 1.7), False)
sketch15.addGeometry(Part.Circle(V(167, 39.8, 0), V(0, 0, 1), 1.5), False)
sketch15.addGeometry(Part.Circle(V(159.2, 32, 0), V(0, 0, 1), 1.5), False)
sketch15.addGeometry(Part.Circle(V(159.2, 21, 0), V(0, 0, 1), 1.6), False)
sketch15.addGeometry(Part.Circle(V(159.2, 5.5, 0), V(0, 0, 1), 1.5), False)
sketch15.addGeometry(Part.Circle(V(159.2, -5.5, 0), V(0, 0, 1), 1.6), False)
sketch15.addConstraint(Sketcher.Constraint("Symmetric", 4, 3, 5, 3, -1))
sketch15.addConstraint(Sketcher.Constraint("Horizontal", 0, 3, 1, 3))
sketch15.addConstraint(Sketcher.Constraint("Vertical", 2, 3, 3, 3))
sketch15.addConstraint(Sketcher.Constraint("Vertical", 3, 3, 4, 3))
sketch15.addConstraint(Sketcher.Constraint("DistanceX", -1, 1, 0, 3, 203.0))
sketch15.addConstraint(Sketcher.Constraint("DistanceX", -1, 1, 1, 3, 167.0))
sketch15.addConstraint(Sketcher.Constraint("DistanceY", -1, 1, 2, 3, 32.0))
sketch15.addConstraint(Sketcher.Constraint("DistanceY", -1, 1, 3, 3, 21.0))
sketch15.addConstraint(Sketcher.Constraint("DistanceY", 5, 3, 4, 3, 11.0))
sketch15.addConstraint(Sketcher.Constraint("Diameter", 1, 2.91832))
sketch15.addConstraint(Sketcher.Constraint("DistanceY", -1, 1, 0, 3, 39.75))
sketch15.addConstraint(Sketcher.Constraint("DistanceX", -1, 1, 2, 3, 159.25))
sketch15.addConstraint(Sketcher.Constraint("Diameter", 0, 3.345057))
sketch15.addConstraint(Sketcher.Constraint("Diameter", 2, 2.919818))
sketch15.addConstraint(Sketcher.Constraint("Diameter", 3, 3.185644))
sketch15.addConstraint(Sketcher.Constraint("Diameter", 4, 3.064433))
sketch15.addConstraint(Sketcher.Constraint("Diameter", 5, 3.192276))
pad4 = body.newObject("PartDesign::Pad", "Pad003")
pad4.Profile = sketch15
pad4.Length = 90
pad4.Reversed = True
doc.recompute()

fillet = body.newObject("PartDesign::Fillet", "Fillet")
fillet.Base = (pad4, edges_at(pad4, [(45, 208.5, -8.75)]))
fillet.Radius = 2
doc.recompute()

fillet2 = body.newObject("PartDesign::Fillet", "Fillet001")
fillet2.Base = (fillet, edges_at(fillet, [(45, 163.75, -11)]))
fillet2.Radius = 2
doc.recompute()

fillet3 = body.newObject("PartDesign::Fillet", "Fillet002")
fillet3.Base = (fillet2, edges_at(fillet2, [(45, 170.25, -11)]))
fillet3.Radius = 2
doc.recompute()

fillet4 = body.newObject("PartDesign::Fillet", "Fillet003")
fillet4.Base = (fillet3, edges_at(fillet3, [(45, 199.75, -11)]))
fillet4.Radius = 2
doc.recompute()

fillet5 = body.newObject("PartDesign::Fillet", "Fillet004")
fillet5.Base = (fillet4, edges_at(fillet4, [(45, 206.25, -11)]))
fillet5.Radius = 2
doc.recompute()

fillet6 = body.newObject("PartDesign::Fillet", "Fillet005")
fillet6.Base = (fillet5, edges_at(fillet5, [(45, 208.5, -2.25)]))
fillet6.Radius = 2
doc.recompute()

fillet7 = body.newObject("PartDesign::Fillet", "Fillet006")
fillet7.Base = (fillet6, edges_at(fillet6, [(45, 208.5, 2.25)]))
fillet7.Radius = 2
doc.recompute()

fillet8 = body.newObject("PartDesign::Fillet", "Fillet007")
fillet8.Base = (fillet7, edges_at(fillet7, [(45, 208.5, 8.75)]))
fillet8.Radius = 2
doc.recompute()

fillet9 = body.newObject("PartDesign::Fillet", "Fillet008")
fillet9.Base = (fillet8, edges_at(fillet8, [(45, 208.5, 17.75)]))
fillet9.Radius = 2
doc.recompute()

fillet10 = body.newObject("PartDesign::Fillet", "Fillet009")
fillet10.Base = (fillet9, edges_at(fillet9, [(45, 208.5, 24.25)]))
fillet10.Radius = 2
doc.recompute()

fillet11 = body.newObject("PartDesign::Fillet", "Fillet010")
fillet11.Base = (fillet10, edges_at(fillet10, [(45, 208.5, 28.75)]))
fillet11.Radius = 2
doc.recompute()

fillet12 = body.newObject("PartDesign::Fillet", "Fillet011")
fillet12.Base = (fillet11, edges_at(fillet11, [(45, 208.5, 35.25)]))
fillet12.Radius = 2

# Sketch on YZ plane
sketch16 = body.newObject("Sketcher::SketchObject", "Sketch015")
sketch16.AttachmentSupport = (doc.getObject("YZ_Plane"), [""])
sketch16.MapMode = "FlatFace"
sketch16.addGeometry(Part.LineSegment(V(193, -11, 0), V(212, 4, 0)), False)
sketch16.addGeometry(Part.ArcOfCircle(Part.Circle(V(206, -9, 0), V(0, 0, 1), 14), math.radians(-170), math.radians(64)), False)
sketch16.addGeometry(Part.LineSegment(V(212, 22, 0), V(192, 38, 0)), False)
sketch16.addGeometry(Part.ArcOfCircle(Part.Circle(V(206, 35, 0), V(0, 0, 1), 14), math.radians(-62), math.radians(169)), False)
sketch16.addGeometry(Part.LineSegment(V(178, 38, 0), V(158, 22, 0)), False)
sketch16.addGeometry(Part.ArcOfCircle(Part.Circle(V(164, 35, 0), V(0, 0, 1), 14), math.radians(11), math.radians(242)), False)
sketch16.addGeometry(Part.LineSegment(V(158, 4, 0), V(177, -11, 0)), False)
sketch16.addGeometry(Part.ArcOfCircle(Part.Circle(V(164, -9, 0), V(0, 0, 1), 14), math.radians(116), math.radians(350)), False)
sketch16.addConstraint(Sketcher.Constraint("Coincident", 0, 1, 1, 1))
sketch16.addConstraint(Sketcher.Constraint("Coincident", 1, 2, 0, 2))
sketch16.addConstraint(Sketcher.Constraint("Coincident", 2, 1, 3, 1))
sketch16.addConstraint(Sketcher.Constraint("Coincident", 3, 2, 2, 2))
sketch16.addConstraint(Sketcher.Constraint("Coincident", 4, 1, 5, 1))
sketch16.addConstraint(Sketcher.Constraint("Coincident", 5, 2, 4, 2))
sketch16.addConstraint(Sketcher.Constraint("Coincident", 6, 1, 7, 1))
sketch16.addConstraint(Sketcher.Constraint("Coincident", 7, 2, 6, 2))
sketch16.addConstraint(Sketcher.Constraint("Equal", 1, 3))
sketch16.addConstraint(Sketcher.Constraint("Equal", 3, 5))
sketch16.addConstraint(Sketcher.Constraint("Equal", 5, 7))
sketch16.addConstraint(Sketcher.Constraint("Horizontal", 3, 3, 5, 3))
sketch16.addConstraint(Sketcher.Constraint("Horizontal", 1, 3, 7, 3))
sketch16.addConstraint(Sketcher.Constraint("Horizontal", 3, 2, 4, 1))
sketch16.addConstraint(Sketcher.Constraint("Horizontal", 2, 1, 5, 2))
sketch16.addConstraint(Sketcher.Constraint("Horizontal", 1, 2, 6, 1))
sketch16.addConstraint(Sketcher.Constraint("Horizontal", 0, 1, 7, 2))
sketch16.addConstraint(Sketcher.Constraint("Vertical", 1, 2, 2, 1))
sketch16.addConstraint(Sketcher.Constraint("Vertical", 5, 2, 6, 1))
sketch16.addConstraint(Sketcher.Constraint("Radius", 1, 14.0))
sketch16.addConstraint(Sketcher.Constraint("DistanceY", 0, 1, -1, 1, 11.0))
sketch16.addConstraint(Sketcher.Constraint("DistanceY", -1, 1, 3, 2, 37.5))
sketch16.addConstraint(Sketcher.Constraint("DistanceX", -1, 1, 1, 2, 212.45))
sketch16.addConstraint(Sketcher.Constraint("DistanceX", -1, 1, 5, 2, 157.55))
sketch16.addConstraint(Sketcher.Constraint("DistanceX", 7, 3, 0, 1, 29.025101))
sketch16.addConstraint(Sketcher.Constraint("Distance", 0, 24.88324))
sketch16.addConstraint(Sketcher.Constraint("DistanceX", -1, 1, 3, 3, 205.959681))
sketch16.addConstraint(Sketcher.Constraint("DistanceY", -1, 1, 2, 1, 22.47394))
pad5 = body.newObject("PartDesign::Pad", "Pad004")
pad5.Profile = sketch16
pad5.Length = 0.4

doc.recompute()
